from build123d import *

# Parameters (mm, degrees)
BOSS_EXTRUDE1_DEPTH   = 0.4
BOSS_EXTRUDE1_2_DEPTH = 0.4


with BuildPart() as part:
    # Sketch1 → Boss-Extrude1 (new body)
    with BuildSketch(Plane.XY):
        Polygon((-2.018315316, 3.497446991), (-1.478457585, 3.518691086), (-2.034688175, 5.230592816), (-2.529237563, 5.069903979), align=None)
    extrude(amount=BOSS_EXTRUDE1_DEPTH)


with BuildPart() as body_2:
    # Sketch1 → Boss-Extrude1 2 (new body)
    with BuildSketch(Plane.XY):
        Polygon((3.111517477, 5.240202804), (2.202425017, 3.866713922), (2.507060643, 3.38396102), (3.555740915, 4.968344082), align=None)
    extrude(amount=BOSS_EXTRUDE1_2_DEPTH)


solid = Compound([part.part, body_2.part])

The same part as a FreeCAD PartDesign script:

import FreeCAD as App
import Part
import Sketcher
from FreeCAD import Vector
Q = App.Units.Quantity


def add_polygon(sketch, points):
    """Adds a closed chain of lines whose ends are joined by coincident constraints."""
    first, n = sketch.GeometryCount, len(points)
    for a, b in zip(points, points[1:] + points[:1]):
        sketch.addGeometry(Part.LineSegment(App.Vector(*a, 0), App.Vector(*b, 0)), False)
    for i in range(n):
        sketch.addConstraint(Sketcher.Constraint("Coincident", first + i, 2, first + (i + 1) % n, 1))

doc = App.newDocument("Part")
params = doc.addObject("Spreadsheet::Sheet", "Params")
for row, (alias, value) in enumerate([
    ("sketch1_length", "1.8 mm"),
    ("sketch1_length2", "0.52 mm"),
    ("pad1_length", "0.4 mm"),
    ("sketch2_length", "1.9 mm"),
    ("pad2_length", "0.4 mm"),
], start=1):
    params.set(f"A{row}", alias)
    params.set(f"B{row}", "=" + value)
    params.setAlias(f"B{row}", alias)

body = doc.addObject("PartDesign::Body", "Body")

# Sketch on XY plane
sketch1 = doc.addObject("Sketcher::SketchObject", "Sketch")
body.addObject(sketch1)
sketch1.AttachmentSupport = (doc.XY_Plane, [""])
sketch1.MapMode = "FlatFace"
add_polygon(sketch1, [(-2.018315, 3.497447), (-1.478458, 3.518691), (-2.034688, 5.230593), (-2.529238, 5.069904)])  # lines 0-3
sketch1.addConstraint([
    Sketcher.Constraint("Perpendicular", 1, 2),
    Sketcher.Constraint("Perpendicular", 2, 3),
    Sketcher.Constraint("Angle", 1, Q("108 deg")),
    Sketcher.Constraint("Distance", 1, 1.8),
    Sketcher.Constraint("Distance", 2, 0.52),
    Sketcher.Constraint("Distance", 3, 1.653379),
    Sketcher.Constraint("DistanceY", -1, 1, 0, 2, 3.518691),
    Sketcher.Constraint("DistanceX", 1, 2, -1, 1, 2.034688),
])
sketch1.setExpression("Constraints[7]", "Params.sketch1_length")
sketch1.setExpression("Constraints[8]", "Params.sketch1_length2")
pad1 = doc.addObject("PartDesign::Pad", "Pad")
body.addObject(pad1)
pad1.Profile = sketch1
pad1.setExpression("Length", "Params.pad1_length")
body2 = doc.addObject("PartDesign::Body", "Body001")

# Sketch on XY plane
sketch2 = doc.addObject("Sketcher::SketchObject", "Sketch001")
body2.addObject(sketch2)
sketch2.AttachmentSupport = (doc.getObject("XY_Plane001"), [""])
sketch2.MapMode = "FlatFace"
add_polygon(sketch2, [(3.111517, 5.240203), (2.202425, 3.866714), (2.507061, 3.383961), (3.555741, 4.968344)])  # lines 0-3
sketch2.addConstraint([
    Sketcher.Constraint("Parallel", 0, 2),
    Sketcher.Constraint("Angle", 0, Q("-123.5 deg")),
    Sketcher.Constraint("Distance", 2, 1.9),
    Sketcher.Constraint("Distance", 3, 0.520809),
    Sketcher.Constraint("DistanceX", -1, 1, 1, 2, 2.507061),
    Sketcher.Constraint("DistanceY", -1, 1, 1, 2, 3.383961),
    Sketcher.Constraint("DistanceY", 0, 2, 2, 2, 1.10163),
    Sketcher.Constraint("DistanceY", 2, 2, 3, 2, 0.271859),
])
sketch2.setExpression("Constraints[6]", "Params.sketch2_length")
pad2 = doc.addObject("PartDesign::Pad", "Pad001")
body2.addObject(pad2)
pad2.Profile = sketch2
pad2.setExpression("Length", "Params.pad2_length")

doc.recompute()
